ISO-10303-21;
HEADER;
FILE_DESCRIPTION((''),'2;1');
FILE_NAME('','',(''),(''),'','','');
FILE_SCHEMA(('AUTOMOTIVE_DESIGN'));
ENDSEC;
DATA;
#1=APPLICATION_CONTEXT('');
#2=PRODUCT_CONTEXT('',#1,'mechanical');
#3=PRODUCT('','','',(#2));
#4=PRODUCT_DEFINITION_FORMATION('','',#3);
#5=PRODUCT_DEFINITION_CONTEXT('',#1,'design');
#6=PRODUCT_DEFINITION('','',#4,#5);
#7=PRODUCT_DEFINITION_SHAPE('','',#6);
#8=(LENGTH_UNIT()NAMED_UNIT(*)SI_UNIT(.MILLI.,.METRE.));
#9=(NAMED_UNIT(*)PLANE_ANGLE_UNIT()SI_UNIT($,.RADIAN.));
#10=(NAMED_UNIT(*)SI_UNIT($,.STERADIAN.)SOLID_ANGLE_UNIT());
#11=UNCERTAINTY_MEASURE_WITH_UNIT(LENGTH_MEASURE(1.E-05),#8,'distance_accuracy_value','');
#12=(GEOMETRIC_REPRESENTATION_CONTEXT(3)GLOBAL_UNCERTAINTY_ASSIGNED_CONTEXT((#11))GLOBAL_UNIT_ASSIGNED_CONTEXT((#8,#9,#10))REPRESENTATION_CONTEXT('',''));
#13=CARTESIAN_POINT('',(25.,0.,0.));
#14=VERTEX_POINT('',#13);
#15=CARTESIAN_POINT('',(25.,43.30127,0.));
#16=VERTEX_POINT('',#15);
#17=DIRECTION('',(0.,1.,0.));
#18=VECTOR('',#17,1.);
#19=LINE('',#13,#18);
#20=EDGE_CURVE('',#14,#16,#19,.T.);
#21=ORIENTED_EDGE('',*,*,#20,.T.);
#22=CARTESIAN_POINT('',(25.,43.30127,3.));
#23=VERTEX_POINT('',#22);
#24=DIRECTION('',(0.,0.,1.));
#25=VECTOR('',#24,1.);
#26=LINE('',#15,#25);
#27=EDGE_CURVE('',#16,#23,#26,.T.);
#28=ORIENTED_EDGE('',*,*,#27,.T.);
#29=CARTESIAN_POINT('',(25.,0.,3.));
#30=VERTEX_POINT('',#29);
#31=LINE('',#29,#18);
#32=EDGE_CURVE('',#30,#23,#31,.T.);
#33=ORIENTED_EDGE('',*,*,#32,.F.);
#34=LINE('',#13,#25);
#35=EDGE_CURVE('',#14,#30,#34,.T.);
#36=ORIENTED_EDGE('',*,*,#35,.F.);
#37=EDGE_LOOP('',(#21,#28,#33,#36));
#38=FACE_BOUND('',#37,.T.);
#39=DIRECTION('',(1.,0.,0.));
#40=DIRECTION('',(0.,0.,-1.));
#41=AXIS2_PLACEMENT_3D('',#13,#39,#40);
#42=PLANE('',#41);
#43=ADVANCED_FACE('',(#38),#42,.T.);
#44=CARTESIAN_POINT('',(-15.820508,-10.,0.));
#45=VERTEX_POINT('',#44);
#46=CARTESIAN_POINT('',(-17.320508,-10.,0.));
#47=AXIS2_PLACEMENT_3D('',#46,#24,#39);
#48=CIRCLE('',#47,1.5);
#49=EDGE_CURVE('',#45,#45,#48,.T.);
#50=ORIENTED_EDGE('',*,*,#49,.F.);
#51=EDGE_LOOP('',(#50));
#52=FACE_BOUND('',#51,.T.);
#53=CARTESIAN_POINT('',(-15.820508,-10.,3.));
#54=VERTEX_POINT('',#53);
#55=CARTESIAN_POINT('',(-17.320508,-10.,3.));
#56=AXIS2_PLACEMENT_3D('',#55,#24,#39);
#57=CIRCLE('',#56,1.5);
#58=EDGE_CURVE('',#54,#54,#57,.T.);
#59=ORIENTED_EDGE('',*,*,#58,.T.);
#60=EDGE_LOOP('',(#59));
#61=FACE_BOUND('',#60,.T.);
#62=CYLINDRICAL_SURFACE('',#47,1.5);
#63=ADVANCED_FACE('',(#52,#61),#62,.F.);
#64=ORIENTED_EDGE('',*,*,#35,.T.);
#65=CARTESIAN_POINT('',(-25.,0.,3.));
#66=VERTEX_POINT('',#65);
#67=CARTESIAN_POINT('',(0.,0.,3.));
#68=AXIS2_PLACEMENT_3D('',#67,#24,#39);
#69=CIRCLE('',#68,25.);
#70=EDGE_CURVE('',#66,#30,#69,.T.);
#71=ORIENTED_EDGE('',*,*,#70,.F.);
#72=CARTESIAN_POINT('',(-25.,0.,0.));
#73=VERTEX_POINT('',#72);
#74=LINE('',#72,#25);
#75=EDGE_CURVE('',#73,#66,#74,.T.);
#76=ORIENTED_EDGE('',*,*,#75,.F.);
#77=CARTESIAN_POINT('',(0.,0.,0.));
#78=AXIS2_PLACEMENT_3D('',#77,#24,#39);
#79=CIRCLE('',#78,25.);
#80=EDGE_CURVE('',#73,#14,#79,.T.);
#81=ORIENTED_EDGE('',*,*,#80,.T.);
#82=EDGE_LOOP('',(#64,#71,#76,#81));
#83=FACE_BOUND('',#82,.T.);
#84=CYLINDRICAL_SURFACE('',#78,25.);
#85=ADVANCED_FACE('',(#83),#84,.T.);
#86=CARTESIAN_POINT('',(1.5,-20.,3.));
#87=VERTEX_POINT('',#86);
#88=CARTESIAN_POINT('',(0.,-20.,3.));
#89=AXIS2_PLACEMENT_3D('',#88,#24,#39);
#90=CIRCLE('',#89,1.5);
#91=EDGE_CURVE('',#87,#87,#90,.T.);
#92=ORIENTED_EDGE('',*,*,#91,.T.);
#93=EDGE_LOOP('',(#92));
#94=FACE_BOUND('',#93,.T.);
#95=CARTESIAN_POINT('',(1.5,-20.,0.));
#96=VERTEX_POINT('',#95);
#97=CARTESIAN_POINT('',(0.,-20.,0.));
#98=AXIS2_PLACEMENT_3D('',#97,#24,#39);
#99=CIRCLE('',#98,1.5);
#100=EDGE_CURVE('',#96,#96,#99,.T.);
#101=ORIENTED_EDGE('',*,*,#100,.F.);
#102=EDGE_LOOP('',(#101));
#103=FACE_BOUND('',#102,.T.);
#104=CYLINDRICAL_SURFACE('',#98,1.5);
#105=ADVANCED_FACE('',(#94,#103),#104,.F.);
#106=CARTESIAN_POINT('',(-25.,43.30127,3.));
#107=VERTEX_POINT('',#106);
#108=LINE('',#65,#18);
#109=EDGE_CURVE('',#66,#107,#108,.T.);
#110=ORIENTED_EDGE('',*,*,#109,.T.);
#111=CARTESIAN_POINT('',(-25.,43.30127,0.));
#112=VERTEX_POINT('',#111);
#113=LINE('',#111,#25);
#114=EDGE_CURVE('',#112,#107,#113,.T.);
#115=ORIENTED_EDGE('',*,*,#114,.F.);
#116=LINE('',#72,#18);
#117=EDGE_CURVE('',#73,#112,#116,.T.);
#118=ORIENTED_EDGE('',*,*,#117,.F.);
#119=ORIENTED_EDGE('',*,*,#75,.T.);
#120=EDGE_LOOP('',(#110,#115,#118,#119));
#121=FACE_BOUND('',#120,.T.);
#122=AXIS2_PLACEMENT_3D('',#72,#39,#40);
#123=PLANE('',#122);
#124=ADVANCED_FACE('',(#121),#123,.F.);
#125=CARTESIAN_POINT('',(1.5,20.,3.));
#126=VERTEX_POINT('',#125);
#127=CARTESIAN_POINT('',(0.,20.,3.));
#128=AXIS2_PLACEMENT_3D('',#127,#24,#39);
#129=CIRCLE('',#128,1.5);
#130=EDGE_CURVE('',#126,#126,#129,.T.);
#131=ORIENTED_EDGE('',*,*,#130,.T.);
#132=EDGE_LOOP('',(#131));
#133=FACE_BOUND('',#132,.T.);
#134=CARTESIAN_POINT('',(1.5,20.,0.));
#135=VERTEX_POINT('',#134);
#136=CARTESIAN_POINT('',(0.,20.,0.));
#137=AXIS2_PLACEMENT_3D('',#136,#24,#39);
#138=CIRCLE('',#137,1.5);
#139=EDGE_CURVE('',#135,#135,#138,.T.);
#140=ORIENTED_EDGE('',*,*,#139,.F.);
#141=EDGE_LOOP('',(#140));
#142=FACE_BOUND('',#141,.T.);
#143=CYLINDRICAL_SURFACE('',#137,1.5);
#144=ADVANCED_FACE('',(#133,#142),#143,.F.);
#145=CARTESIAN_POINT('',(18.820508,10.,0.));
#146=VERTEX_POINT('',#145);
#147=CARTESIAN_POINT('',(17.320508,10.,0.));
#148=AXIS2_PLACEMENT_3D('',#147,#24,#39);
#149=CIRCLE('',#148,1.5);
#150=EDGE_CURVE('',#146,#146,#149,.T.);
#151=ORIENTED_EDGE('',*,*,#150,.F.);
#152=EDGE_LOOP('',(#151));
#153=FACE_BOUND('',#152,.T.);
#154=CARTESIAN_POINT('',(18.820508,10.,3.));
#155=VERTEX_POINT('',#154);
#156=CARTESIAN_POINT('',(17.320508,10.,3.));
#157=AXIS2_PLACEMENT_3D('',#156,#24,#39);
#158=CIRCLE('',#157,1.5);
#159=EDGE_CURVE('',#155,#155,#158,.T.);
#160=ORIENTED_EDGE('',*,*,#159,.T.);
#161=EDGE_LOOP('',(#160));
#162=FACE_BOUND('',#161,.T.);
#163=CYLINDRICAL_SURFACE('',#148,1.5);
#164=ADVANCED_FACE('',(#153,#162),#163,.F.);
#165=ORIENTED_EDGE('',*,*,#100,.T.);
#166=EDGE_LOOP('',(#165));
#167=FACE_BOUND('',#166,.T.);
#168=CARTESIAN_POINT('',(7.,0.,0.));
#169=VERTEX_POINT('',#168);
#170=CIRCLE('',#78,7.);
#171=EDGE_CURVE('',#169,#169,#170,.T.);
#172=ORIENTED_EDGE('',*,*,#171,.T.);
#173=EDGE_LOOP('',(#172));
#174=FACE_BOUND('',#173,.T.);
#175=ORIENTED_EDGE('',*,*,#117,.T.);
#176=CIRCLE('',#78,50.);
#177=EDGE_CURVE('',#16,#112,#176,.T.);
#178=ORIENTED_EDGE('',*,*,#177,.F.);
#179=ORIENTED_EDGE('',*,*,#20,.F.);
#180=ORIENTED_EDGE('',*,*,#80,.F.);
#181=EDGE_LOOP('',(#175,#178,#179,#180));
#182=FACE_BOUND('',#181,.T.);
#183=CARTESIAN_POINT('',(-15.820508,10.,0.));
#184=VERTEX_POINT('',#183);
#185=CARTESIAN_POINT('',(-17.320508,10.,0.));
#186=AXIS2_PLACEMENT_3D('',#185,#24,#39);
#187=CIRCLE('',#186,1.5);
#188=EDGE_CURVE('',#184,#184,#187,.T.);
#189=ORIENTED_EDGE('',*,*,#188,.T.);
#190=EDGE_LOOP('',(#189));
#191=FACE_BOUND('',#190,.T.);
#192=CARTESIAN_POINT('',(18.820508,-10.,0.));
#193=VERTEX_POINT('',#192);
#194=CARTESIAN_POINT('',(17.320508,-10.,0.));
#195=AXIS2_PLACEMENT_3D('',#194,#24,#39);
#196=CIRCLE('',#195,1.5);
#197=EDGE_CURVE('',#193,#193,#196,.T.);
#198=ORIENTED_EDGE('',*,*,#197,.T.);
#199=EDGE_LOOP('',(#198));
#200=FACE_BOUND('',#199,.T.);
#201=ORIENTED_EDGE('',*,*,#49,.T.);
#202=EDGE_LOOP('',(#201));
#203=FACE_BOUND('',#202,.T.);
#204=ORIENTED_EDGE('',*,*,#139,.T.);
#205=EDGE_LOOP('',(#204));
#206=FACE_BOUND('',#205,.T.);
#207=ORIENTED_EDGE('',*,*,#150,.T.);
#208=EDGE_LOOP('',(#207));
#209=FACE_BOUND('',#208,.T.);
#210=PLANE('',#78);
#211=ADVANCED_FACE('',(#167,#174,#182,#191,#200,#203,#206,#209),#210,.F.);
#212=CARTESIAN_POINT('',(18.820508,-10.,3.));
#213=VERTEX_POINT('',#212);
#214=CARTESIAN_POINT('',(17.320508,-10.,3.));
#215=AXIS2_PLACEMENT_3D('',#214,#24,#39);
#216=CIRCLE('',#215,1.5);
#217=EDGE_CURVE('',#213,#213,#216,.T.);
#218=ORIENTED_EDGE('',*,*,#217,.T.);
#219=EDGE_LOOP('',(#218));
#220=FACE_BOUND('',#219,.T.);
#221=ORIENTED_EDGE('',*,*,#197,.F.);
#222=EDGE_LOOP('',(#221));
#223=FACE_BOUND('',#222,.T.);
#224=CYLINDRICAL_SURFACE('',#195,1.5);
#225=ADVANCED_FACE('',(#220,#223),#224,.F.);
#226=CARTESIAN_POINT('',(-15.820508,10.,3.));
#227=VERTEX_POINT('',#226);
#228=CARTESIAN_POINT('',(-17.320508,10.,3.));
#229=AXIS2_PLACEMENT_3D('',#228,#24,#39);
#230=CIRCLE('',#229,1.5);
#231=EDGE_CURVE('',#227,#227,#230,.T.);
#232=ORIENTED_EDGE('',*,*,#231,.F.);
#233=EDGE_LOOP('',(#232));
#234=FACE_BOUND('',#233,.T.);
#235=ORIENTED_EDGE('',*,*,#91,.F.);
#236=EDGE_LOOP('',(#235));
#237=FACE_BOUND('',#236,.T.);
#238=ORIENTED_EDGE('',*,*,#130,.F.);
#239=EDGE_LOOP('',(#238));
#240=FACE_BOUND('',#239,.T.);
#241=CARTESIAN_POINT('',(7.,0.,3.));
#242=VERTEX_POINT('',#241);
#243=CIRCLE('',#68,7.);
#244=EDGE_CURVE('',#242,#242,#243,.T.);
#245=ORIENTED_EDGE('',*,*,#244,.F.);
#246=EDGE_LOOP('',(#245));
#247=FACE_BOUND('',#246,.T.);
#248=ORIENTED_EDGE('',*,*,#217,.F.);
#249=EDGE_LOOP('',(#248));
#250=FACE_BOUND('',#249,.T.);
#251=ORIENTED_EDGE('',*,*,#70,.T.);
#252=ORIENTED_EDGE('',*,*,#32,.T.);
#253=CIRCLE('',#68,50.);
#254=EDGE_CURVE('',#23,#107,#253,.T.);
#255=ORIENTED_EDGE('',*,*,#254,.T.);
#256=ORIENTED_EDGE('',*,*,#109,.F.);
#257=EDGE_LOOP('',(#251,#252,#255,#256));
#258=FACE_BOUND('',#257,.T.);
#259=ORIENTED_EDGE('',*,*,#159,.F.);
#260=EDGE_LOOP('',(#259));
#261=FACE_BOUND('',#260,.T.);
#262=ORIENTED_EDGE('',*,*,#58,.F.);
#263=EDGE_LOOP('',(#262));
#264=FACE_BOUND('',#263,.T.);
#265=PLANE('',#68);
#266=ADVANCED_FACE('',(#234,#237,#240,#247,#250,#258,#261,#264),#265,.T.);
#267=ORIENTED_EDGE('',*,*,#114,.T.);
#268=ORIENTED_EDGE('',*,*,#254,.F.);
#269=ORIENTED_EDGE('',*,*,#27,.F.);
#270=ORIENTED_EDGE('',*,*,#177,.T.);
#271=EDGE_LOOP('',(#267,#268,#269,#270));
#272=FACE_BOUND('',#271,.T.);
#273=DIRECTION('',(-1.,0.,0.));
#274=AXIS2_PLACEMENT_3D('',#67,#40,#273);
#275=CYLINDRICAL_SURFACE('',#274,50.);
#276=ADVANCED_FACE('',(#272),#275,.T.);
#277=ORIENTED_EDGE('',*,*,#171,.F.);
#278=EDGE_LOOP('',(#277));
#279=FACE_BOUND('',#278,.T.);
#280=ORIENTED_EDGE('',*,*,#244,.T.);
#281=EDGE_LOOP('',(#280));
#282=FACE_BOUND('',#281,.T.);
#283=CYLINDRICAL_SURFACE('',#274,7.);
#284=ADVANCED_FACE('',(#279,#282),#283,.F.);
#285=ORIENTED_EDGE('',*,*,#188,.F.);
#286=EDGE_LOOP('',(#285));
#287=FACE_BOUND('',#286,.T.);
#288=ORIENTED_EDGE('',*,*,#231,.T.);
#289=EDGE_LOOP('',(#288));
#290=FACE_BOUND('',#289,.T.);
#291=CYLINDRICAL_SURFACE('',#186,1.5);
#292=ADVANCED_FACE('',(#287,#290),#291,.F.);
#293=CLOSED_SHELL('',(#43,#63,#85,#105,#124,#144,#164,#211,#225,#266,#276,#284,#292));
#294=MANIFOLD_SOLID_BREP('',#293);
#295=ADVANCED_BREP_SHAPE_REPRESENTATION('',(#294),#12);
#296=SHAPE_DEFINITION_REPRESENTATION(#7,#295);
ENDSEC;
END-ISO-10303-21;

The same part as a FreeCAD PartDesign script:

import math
import FreeCAD as App
import Part
import Sketcher

doc = App.newDocument("Part")
params = doc.addObject("Spreadsheet::Sheet", "Params")
for row, (alias, value) in enumerate([
    ("sketch1_diameter", "100 mm"),
    ("sketch1_diameter2", "14 mm"),
    ("pad1_length", "3 mm"),
    ("sketch2_diameter", "3 mm"),
    ("sketch2_radius", "25 mm"),
    ("sketch2_radius2", "50 mm"),
], start=1):
    params.set(f"A{row}", alias)
    params.set(f"B{row}", "=" + value)
    params.setAlias(f"B{row}", alias)

body = doc.addObject("PartDesign::Body", "Body")

sketch1 = doc.addObject("Sketcher::SketchObject", "Sketch")
body.addObject(sketch1)
sketch1.AttachmentSupport = (doc.XY_Plane, [""])
sketch1.MapMode = "FlatFace"
sketch1.addGeometry([
    Part.Circle(App.Vector(0, 0, 0), App.Vector(0, 0, 1), 50),
    Part.Circle(App.Vector(0, 0, 0), App.Vector(0, 0, 1), 7),
], False)
sketch1.addConstraint([
    Sketcher.Constraint("Coincident", 0, 3, -1, 1),
    Sketcher.Constraint("Coincident", 1, 3, -1, 1),
    Sketcher.Constraint("Diameter", 0, 100.0),
    Sketcher.Constraint("Diameter", 1, 14.0),
])
sketch1.setExpression("Constraints[2]", "Params.sketch1_diameter")
sketch1.setExpression("Constraints[3]", "Params.sketch1_diameter2")
pad1 = doc.addObject("PartDesign::Pad", "Pad")
body.addObject(pad1)
pad1.Profile = sketch1
pad1.setExpression("Length", "Params.pad1_length")

sketch2 = doc.addObject("Sketcher::SketchObject", "Sketch001")
body.addObject(sketch2)
sketch2.AttachmentSupport = (doc.XY_Plane, [""])
sketch2.MapMode = "FlatFace"
sketch2.AttachmentOffset = App.Placement(App.Vector(0, 0, 3), App.Rotation())
sketch2.addGeometry([
    Part.LineSegment(App.Vector(25, 43.30127, 0), App.Vector(25, 0, 0)),
    Part.ArcOfCircle(Part.Circle(App.Vector(0, 0, 0), App.Vector(0, 0, 1), 25), math.radians(180), math.radians(360)),
    Part.LineSegment(App.Vector(-25, 0, 0), App.Vector(-25, 43.30127, 0)),
    Part.ArcOfCircle(Part.Circle(App.Vector(0, 0, 0), App.Vector(0, 0, 1), 50), math.radians(120), math.radians(420)),
    Part.Circle(App.Vector(0, 20, 0), App.Vector(0, 0, 1), 1.5),
    Part.Circle(App.Vector(17.320508, 10, 0), App.Vector(0, 0, 1), 1.5),
    Part.Circle(App.Vector(17.320508, -10, 0), App.Vector(0, 0, 1), 1.5),
    Part.Circle(App.Vector(0, -20, 0), App.Vector(0, 0, 1), 1.5),
    Part.Circle(App.Vector(-17.320508, -10, 0), App.Vector(0, 0, 1), 1.5),
    Part.Circle(App.Vector(-17.320508, 10, 0), App.Vector(0, 0, 1), 1.5),
], False)
sketch2.addConstraint([
    Sketcher.Constraint("Tangent", 0, 2, 1, 2),
    Sketcher.Constraint("Tangent", 1, 1, 2, 1),
    Sketcher.Constraint("Coincident", 2, 2, 3, 1),
    Sketcher.Constraint("Coincident", 3, 2, 0, 1),
    Sketcher.Constraint("Vertical", 0),
    Sketcher.Constraint("Vertical", 2),
    Sketcher.Constraint("Coincident", 1, 3, -1, 1),
    Sketcher.Constraint("Coincident", 3, 3, -1, 1),
    Sketcher.Constraint("Equal", 4, 5),
    Sketcher.Constraint("Equal", 5, 6),
    Sketcher.Constraint("Equal", 6, 7),
    Sketcher.Constraint("Equal", 7, 8),
    Sketcher.Constraint("Equal", 8, 9),
    Sketcher.Constraint("Symmetric", 4, 3, 7, 3, -1, 1),
    Sketcher.Constraint("Symmetric", 5, 3, 8, 3, -1, 1),
    Sketcher.Constraint("Symmetric", 6, 3, 9, 3, -1, 1),
    Sketcher.Constraint("Symmetric", 6, 3, 8, 3, -2),
    Sketcher.Constraint("PointOnObject", 4, 3, -2),
    Sketcher.Constraint("Diameter", 4, 3.0),
    Sketcher.Constraint("Radius", 1, 25.0),
    Sketcher.Constraint("Radius", 3, 50.0),
    Sketcher.Constraint("DistanceY", -1, 1, 4, 3, 20.0),
    Sketcher.Constraint("DistanceY", -1, 1, 5, 3, 10.0),
    Sketcher.Constraint("DistanceX", -1, 1, 5, 3, 17.320508),
])
sketch2.setExpression("Constraints[18]", "Params.sketch2_diameter")
sketch2.setExpression("Constraints[19]", "Params.sketch2_radius")
sketch2.setExpression("Constraints[20]", "Params.sketch2_radius2")
pocket1 = doc.addObject("PartDesign::Pocket", "Pocket")
body.addObject(pocket1)
pocket1.Profile = sketch2
pocket1.Type = "ThroughAll"

doc.recompute()
